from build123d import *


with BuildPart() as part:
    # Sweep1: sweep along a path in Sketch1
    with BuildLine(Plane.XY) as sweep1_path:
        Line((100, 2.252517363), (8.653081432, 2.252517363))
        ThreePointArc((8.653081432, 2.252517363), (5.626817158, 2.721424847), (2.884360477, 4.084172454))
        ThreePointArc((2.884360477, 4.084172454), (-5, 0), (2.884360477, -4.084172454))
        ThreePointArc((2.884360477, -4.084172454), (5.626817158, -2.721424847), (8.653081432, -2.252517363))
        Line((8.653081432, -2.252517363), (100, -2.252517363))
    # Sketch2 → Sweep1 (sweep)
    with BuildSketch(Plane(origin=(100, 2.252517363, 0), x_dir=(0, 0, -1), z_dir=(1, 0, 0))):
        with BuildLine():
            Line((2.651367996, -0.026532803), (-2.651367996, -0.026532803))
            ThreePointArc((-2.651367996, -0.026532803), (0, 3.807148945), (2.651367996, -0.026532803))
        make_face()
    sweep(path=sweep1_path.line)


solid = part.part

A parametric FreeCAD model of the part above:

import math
import FreeCAD as App
import Part
import Sketcher

V = App.Vector

doc = App.newDocument("Part")
body = doc.addObject("PartDesign::Body", "Body")

# Sketch on YZ plane
sketch1 = doc.addObject("Sketcher::SketchObject", "Sketch")
body.addObject(sketch1)
sketch1.AttachmentSupport = (doc.YZ_Plane, [""])
sketch1.MapMode = "FlatFace"
sketch1.AttachmentOffset = App.Placement(V(0, 0, 100), App.Rotation())
sketch1.addGeometry([
    Part.LineSegment(V(2.2, 2.7, 0), V(2.2, -2.7, 0)),
    Part.ArcOfCircle(Part.Circle(V(3.2, 0, 0), V(0, 0, 1), 2.8), math.radians(-111), math.radians(111)),
], False)
sketch1.addConstraint([
    Sketcher.Constraint("Coincident", 0, 1, 1, 2),
    Sketcher.Constraint("Coincident", 1, 1, 0, 2),
    Sketcher.Constraint("Vertical", 0),
    Sketcher.Constraint("PointOnObject", 1, 3, -1),
    Sketcher.Constraint("DistanceX", 0, 1, 1, 3, 1.0),
    Sketcher.Constraint("Radius", 1, 2.833682),
    Sketcher.Constraint("DistanceX", -1, 1, 1, 3, 3.225985),
])

# Sketch on XY plane
sketch2 = doc.addObject("Sketcher::SketchObject", "Sketch001")
body.addObject(sketch2)
sketch2.AttachmentSupport = (doc.XY_Plane, [""])
sketch2.MapMode = "FlatFace"
sketch2.addGeometry([
    Part.LineSegment(V(100, 2, 0), V(9, 2, 0)),  # 0
    Part.ArcOfCircle(Part.Circle(V(9, 12, 0), V(0, 0, 1), 10), math.radians(-125), math.radians(-90)),  # 1
    Part.ArcOfCircle(Part.Circle(V(0, 0, 0), V(0, 0, 1), 5), math.radians(55), math.radians(305)),  # 2
    Part.ArcOfCircle(Part.Circle(V(9, -12, 0), V(0, 0, 1), 10), math.radians(90), math.radians(125)),  # 3
    Part.LineSegment(V(9, -2, 0), V(100, -2, 0)),  # 4
], False)
sketch2.addConstraint([
    Sketcher.Constraint("Tangent", 0, 2, 1, 2),
    Sketcher.Constraint("Tangent", 1, 1, 2, 1),
    Sketcher.Constraint("Tangent", 2, 2, 3, 2),
    Sketcher.Constraint("Tangent", 3, 1, 4, 1),
    Sketcher.Constraint("Horizontal", 0),
    Sketcher.Constraint("Horizontal", 4),
    Sketcher.Constraint("Coincident", 2, 3, -1, 1),
    Sketcher.Constraint("Equal", 1, 3),
    Sketcher.Constraint("Symmetric", 0, 1, 4, 2, -1),
    Sketcher.Constraint("Radius", 1, 10.0),
    Sketcher.Constraint("Radius", 2, 5.0),
    Sketcher.Constraint("DistanceX", -1, 1, 0, 1, 100.0),
    Sketcher.Constraint("DistanceX", 0, 2, 0, 1, 91.346919),
])
doc.recompute()

additivepipe = doc.addObject("PartDesign::AdditivePipe", "AdditivePipe")
body.addObject(additivepipe)
additivepipe.Profile = sketch1
additivepipe.Spine = (sketch2, ["Edge1", "Edge2", "Edge3", "Edge4", "Edge5"])

doc.recompute()
